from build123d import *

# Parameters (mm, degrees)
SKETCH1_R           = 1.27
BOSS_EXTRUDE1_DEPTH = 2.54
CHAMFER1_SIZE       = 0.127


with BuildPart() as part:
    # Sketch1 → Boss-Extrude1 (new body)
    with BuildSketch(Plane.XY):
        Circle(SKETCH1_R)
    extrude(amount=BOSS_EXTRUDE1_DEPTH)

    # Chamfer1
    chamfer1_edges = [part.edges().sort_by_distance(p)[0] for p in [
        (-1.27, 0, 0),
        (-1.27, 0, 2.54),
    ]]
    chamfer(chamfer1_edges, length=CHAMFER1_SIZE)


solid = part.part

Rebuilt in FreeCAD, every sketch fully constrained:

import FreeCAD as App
import Part
import Sketcher

V = App.Vector
Q = App.Units.Quantity


def edges_at(feature, points):
    """Names of the edges that pass closest to the given points."""
    edges = feature.Shape.Edges
    near = lambda p: min(range(len(edges)), key=lambda i: edges[i].distToShape(Part.Vertex(*p))[0])
    return sorted({f"Edge{near(p) + 1}" for p in points})

doc = App.newDocument("Part")
body = doc.addObject("PartDesign::Body", "Body")

# Sketch on XY plane
sketch1 = body.newObject("Sketcher::SketchObject", "Sketch")
sketch1.AttachmentSupport = (doc.getObject("XY_Plane"), [""])
sketch1.MapMode = "FlatFace"
sketch1.addGeometry(Part.Circle(V(0, 0, 0), V(0, 0, 1), 1.3), False)
sketch1.addConstraint([
    Sketcher.Constraint("Coincident", 0, 3, -1, 1),
    Sketcher.Constraint("Diameter", 0, Q("0.1 in")),
])
pad1 = body.newObject("PartDesign::Pad", "Pad")
pad1.Profile = sketch1
pad1.Length = Q("0.1 in")
doc.recompute()

chamfer = body.newObject("PartDesign::Chamfer", "Chamfer")
chamfer.Base = (pad1, edges_at(pad1, [(-1.27, 0, 0), (-1.27, 0, 2.54)]))
chamfer.Size = Q("0.005 in")

doc.recompute()
